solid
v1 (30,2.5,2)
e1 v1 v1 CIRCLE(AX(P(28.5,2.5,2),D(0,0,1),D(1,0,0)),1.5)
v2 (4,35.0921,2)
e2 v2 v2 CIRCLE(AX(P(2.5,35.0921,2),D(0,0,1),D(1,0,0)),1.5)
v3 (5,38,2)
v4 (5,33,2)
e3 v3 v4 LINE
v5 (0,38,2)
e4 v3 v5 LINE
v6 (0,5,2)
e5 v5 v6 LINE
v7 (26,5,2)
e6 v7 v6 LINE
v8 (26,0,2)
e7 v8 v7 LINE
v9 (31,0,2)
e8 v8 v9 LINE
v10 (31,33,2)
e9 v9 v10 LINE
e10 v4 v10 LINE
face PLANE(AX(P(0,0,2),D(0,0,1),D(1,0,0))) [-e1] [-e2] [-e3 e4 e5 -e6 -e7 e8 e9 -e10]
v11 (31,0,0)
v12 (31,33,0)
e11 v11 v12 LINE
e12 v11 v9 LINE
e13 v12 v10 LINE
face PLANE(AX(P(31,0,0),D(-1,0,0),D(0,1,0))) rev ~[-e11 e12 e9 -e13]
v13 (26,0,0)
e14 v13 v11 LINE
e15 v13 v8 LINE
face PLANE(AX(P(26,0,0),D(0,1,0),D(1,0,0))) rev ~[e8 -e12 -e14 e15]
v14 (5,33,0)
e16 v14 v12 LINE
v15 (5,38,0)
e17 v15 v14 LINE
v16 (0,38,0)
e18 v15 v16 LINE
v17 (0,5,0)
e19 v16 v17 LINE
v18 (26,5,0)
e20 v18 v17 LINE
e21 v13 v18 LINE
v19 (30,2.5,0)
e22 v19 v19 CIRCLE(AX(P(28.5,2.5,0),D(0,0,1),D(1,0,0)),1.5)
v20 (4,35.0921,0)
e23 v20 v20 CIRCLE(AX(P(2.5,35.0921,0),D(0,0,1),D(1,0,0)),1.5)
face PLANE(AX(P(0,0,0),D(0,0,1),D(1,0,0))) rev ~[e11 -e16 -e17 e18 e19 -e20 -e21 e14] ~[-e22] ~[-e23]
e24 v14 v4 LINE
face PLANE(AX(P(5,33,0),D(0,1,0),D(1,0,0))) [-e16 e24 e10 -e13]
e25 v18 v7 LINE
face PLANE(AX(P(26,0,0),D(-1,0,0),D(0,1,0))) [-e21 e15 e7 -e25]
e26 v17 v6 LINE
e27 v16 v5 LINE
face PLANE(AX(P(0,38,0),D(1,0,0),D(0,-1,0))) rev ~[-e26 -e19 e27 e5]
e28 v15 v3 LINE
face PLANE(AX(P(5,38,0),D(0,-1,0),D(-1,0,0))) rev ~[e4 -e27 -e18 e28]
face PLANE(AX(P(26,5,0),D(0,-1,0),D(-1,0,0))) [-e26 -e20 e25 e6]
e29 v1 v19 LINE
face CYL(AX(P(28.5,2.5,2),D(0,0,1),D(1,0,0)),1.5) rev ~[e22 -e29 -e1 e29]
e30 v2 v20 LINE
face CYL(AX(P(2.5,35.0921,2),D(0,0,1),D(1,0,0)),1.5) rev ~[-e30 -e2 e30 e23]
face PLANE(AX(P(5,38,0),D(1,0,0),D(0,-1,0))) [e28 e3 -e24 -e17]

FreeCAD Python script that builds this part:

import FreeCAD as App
import Part
import Sketcher
from FreeCAD import Vector

doc = App.newDocument("Part")
params = doc.addObject("Spreadsheet::Sheet", "Params")
for row, (alias, value) in enumerate([
    ("sketch1_width", "5 mm"),
    ("pad1_length", "2 mm"),
    ("sketch2_diameter", "3 mm"),
    ("pocket1_length", "2 mm"),
], start=1):
    params.set(f"A{row}", alias)
    params.set(f"B{row}", "=" + value)
    params.setAlias(f"B{row}", alias)

body = doc.addObject("PartDesign::Body", "Body")

sketch1 = body.newObject("Sketcher::SketchObject", "Sketch")
sketch1.AttachmentSupport = (doc.getObject("XY_Plane"), [""])
sketch1.MapMode = "FlatFace"
sketch1.addGeometry(Part.LineSegment(Vector(26, 5, 0), Vector(26, 0, 0)), False)
sketch1.addGeometry(Part.LineSegment(Vector(26, 0, 0), Vector(31, 0, 0)), False)
sketch1.addGeometry(Part.LineSegment(Vector(31, 0, 0), Vector(31, 33, 0)), False)
sketch1.addGeometry(Part.LineSegment(Vector(31, 33, 0), Vector(5, 33, 0)), False)
sketch1.addGeometry(Part.LineSegment(Vector(5, 33, 0), Vector(5, 38, 0)), False)
sketch1.addGeometry(Part.LineSegment(Vector(5, 38, 0), Vector(0, 38, 0)), False)
sketch1.addGeometry(Part.LineSegment(Vector(0, 38, 0), Vector(0, 5, 0)), False)
sketch1.addGeometry(Part.LineSegment(Vector(0, 5, 0), Vector(26, 5, 0)), False)
sketch1.addConstraint(Sketcher.Constraint("Coincident", 0, 2, 1, 1))
sketch1.addConstraint(Sketcher.Constraint("Coincident", 1, 2, 2, 1))
sketch1.addConstraint(Sketcher.Constraint("Coincident", 2, 2, 3, 1))
sketch1.addConstraint(Sketcher.Constraint("Coincident", 3, 2, 4, 1))
sketch1.addConstraint(Sketcher.Constraint("Coincident", 4, 2, 5, 1))
sketch1.addConstraint(Sketcher.Constraint("Coincident", 5, 2, 6, 1))
sketch1.addConstraint(Sketcher.Constraint("Coincident", 6, 2, 7, 1))
sketch1.addConstraint(Sketcher.Constraint("Coincident", 7, 2, 0, 1))
sketch1.addConstraint(Sketcher.Constraint("Vertical", 0))
sketch1.addConstraint(Sketcher.Constraint("Horizontal", 1))
sketch1.addConstraint(Sketcher.Constraint("Vertical", 2))
sketch1.addConstraint(Sketcher.Constraint("Horizontal", 3))
sketch1.addConstraint(Sketcher.Constraint("Vertical", 4))
sketch1.addConstraint(Sketcher.Constraint("Horizontal", 5))
sketch1.addConstraint(Sketcher.Constraint("Vertical", 6))
sketch1.addConstraint(Sketcher.Constraint("Horizontal", 7))
sketch1.addConstraint(Sketcher.Constraint("PointOnObject", 0, 2, -1))
sketch1.addConstraint(Sketcher.Constraint("PointOnObject", 5, 2, -2))
sketch1.addConstraint(Sketcher.Constraint("Equal", 1, 5))
sketch1.addConstraint(Sketcher.Constraint("Equal", 5, 0))
sketch1.addConstraint(Sketcher.Constraint("Equal", 0, 4))
sketch1.addConstraint(Sketcher.Constraint("DistanceX", 1, 1, 1, 2, 5.0))
sketch1.addConstraint(Sketcher.Constraint("DistanceX", -1, 1, 1, 2, 31.0))
sketch1.addConstraint(Sketcher.Constraint("DistanceY", -1, 1, 4, 2, 38.0))
sketch1.setExpression("Constraints[21]", "Params.sketch1_width")
pad1 = body.newObject("PartDesign::Pad", "Pad")
pad1.Profile = sketch1
pad1.setExpression("Length", "Params.pad1_length")

sketch2 = body.newObject("Sketcher::SketchObject", "Sketch001")
sketch2.AttachmentSupport = (doc.getObject("XY_Plane"), [""])
sketch2.MapMode = "FlatFace"
sketch2.AttachmentOffset = App.Placement(Vector(0, 0, 2), App.Rotation())
sketch2.addGeometry(Part.Circle(Vector(2.5, 35.1, 0), Vector(0, 0, 1), 1.5), False)
sketch2.addGeometry(Part.Circle(Vector(28.5, 2.5, 0), Vector(0, 0, 1), 1.5), False)
sketch2.addConstraint(Sketcher.Constraint("Equal", 0, 1))
sketch2.addConstraint(Sketcher.Constraint("Diameter", 0, 3.0))
sketch2.addConstraint(Sketcher.Constraint("DistanceX", 0, 3, 1, 3, 26.0))
sketch2.addConstraint(Sketcher.Constraint("DistanceX", -1, 1, 0, 3, 2.5))
sketch2.addConstraint(Sketcher.Constraint("DistanceY", -1, 1, 1, 3, 2.5))
sketch2.addConstraint(Sketcher.Constraint("DistanceY", -1, 1, 0, 3, 35.092))
sketch2.setExpression("Constraints[1]", "Params.sketch2_diameter")
pocket1 = body.newObject("PartDesign::Pocket", "Pocket")
pocket1.Profile = sketch2
pocket1.setExpression("Length", "Params.pocket1_length")

doc.recompute()
